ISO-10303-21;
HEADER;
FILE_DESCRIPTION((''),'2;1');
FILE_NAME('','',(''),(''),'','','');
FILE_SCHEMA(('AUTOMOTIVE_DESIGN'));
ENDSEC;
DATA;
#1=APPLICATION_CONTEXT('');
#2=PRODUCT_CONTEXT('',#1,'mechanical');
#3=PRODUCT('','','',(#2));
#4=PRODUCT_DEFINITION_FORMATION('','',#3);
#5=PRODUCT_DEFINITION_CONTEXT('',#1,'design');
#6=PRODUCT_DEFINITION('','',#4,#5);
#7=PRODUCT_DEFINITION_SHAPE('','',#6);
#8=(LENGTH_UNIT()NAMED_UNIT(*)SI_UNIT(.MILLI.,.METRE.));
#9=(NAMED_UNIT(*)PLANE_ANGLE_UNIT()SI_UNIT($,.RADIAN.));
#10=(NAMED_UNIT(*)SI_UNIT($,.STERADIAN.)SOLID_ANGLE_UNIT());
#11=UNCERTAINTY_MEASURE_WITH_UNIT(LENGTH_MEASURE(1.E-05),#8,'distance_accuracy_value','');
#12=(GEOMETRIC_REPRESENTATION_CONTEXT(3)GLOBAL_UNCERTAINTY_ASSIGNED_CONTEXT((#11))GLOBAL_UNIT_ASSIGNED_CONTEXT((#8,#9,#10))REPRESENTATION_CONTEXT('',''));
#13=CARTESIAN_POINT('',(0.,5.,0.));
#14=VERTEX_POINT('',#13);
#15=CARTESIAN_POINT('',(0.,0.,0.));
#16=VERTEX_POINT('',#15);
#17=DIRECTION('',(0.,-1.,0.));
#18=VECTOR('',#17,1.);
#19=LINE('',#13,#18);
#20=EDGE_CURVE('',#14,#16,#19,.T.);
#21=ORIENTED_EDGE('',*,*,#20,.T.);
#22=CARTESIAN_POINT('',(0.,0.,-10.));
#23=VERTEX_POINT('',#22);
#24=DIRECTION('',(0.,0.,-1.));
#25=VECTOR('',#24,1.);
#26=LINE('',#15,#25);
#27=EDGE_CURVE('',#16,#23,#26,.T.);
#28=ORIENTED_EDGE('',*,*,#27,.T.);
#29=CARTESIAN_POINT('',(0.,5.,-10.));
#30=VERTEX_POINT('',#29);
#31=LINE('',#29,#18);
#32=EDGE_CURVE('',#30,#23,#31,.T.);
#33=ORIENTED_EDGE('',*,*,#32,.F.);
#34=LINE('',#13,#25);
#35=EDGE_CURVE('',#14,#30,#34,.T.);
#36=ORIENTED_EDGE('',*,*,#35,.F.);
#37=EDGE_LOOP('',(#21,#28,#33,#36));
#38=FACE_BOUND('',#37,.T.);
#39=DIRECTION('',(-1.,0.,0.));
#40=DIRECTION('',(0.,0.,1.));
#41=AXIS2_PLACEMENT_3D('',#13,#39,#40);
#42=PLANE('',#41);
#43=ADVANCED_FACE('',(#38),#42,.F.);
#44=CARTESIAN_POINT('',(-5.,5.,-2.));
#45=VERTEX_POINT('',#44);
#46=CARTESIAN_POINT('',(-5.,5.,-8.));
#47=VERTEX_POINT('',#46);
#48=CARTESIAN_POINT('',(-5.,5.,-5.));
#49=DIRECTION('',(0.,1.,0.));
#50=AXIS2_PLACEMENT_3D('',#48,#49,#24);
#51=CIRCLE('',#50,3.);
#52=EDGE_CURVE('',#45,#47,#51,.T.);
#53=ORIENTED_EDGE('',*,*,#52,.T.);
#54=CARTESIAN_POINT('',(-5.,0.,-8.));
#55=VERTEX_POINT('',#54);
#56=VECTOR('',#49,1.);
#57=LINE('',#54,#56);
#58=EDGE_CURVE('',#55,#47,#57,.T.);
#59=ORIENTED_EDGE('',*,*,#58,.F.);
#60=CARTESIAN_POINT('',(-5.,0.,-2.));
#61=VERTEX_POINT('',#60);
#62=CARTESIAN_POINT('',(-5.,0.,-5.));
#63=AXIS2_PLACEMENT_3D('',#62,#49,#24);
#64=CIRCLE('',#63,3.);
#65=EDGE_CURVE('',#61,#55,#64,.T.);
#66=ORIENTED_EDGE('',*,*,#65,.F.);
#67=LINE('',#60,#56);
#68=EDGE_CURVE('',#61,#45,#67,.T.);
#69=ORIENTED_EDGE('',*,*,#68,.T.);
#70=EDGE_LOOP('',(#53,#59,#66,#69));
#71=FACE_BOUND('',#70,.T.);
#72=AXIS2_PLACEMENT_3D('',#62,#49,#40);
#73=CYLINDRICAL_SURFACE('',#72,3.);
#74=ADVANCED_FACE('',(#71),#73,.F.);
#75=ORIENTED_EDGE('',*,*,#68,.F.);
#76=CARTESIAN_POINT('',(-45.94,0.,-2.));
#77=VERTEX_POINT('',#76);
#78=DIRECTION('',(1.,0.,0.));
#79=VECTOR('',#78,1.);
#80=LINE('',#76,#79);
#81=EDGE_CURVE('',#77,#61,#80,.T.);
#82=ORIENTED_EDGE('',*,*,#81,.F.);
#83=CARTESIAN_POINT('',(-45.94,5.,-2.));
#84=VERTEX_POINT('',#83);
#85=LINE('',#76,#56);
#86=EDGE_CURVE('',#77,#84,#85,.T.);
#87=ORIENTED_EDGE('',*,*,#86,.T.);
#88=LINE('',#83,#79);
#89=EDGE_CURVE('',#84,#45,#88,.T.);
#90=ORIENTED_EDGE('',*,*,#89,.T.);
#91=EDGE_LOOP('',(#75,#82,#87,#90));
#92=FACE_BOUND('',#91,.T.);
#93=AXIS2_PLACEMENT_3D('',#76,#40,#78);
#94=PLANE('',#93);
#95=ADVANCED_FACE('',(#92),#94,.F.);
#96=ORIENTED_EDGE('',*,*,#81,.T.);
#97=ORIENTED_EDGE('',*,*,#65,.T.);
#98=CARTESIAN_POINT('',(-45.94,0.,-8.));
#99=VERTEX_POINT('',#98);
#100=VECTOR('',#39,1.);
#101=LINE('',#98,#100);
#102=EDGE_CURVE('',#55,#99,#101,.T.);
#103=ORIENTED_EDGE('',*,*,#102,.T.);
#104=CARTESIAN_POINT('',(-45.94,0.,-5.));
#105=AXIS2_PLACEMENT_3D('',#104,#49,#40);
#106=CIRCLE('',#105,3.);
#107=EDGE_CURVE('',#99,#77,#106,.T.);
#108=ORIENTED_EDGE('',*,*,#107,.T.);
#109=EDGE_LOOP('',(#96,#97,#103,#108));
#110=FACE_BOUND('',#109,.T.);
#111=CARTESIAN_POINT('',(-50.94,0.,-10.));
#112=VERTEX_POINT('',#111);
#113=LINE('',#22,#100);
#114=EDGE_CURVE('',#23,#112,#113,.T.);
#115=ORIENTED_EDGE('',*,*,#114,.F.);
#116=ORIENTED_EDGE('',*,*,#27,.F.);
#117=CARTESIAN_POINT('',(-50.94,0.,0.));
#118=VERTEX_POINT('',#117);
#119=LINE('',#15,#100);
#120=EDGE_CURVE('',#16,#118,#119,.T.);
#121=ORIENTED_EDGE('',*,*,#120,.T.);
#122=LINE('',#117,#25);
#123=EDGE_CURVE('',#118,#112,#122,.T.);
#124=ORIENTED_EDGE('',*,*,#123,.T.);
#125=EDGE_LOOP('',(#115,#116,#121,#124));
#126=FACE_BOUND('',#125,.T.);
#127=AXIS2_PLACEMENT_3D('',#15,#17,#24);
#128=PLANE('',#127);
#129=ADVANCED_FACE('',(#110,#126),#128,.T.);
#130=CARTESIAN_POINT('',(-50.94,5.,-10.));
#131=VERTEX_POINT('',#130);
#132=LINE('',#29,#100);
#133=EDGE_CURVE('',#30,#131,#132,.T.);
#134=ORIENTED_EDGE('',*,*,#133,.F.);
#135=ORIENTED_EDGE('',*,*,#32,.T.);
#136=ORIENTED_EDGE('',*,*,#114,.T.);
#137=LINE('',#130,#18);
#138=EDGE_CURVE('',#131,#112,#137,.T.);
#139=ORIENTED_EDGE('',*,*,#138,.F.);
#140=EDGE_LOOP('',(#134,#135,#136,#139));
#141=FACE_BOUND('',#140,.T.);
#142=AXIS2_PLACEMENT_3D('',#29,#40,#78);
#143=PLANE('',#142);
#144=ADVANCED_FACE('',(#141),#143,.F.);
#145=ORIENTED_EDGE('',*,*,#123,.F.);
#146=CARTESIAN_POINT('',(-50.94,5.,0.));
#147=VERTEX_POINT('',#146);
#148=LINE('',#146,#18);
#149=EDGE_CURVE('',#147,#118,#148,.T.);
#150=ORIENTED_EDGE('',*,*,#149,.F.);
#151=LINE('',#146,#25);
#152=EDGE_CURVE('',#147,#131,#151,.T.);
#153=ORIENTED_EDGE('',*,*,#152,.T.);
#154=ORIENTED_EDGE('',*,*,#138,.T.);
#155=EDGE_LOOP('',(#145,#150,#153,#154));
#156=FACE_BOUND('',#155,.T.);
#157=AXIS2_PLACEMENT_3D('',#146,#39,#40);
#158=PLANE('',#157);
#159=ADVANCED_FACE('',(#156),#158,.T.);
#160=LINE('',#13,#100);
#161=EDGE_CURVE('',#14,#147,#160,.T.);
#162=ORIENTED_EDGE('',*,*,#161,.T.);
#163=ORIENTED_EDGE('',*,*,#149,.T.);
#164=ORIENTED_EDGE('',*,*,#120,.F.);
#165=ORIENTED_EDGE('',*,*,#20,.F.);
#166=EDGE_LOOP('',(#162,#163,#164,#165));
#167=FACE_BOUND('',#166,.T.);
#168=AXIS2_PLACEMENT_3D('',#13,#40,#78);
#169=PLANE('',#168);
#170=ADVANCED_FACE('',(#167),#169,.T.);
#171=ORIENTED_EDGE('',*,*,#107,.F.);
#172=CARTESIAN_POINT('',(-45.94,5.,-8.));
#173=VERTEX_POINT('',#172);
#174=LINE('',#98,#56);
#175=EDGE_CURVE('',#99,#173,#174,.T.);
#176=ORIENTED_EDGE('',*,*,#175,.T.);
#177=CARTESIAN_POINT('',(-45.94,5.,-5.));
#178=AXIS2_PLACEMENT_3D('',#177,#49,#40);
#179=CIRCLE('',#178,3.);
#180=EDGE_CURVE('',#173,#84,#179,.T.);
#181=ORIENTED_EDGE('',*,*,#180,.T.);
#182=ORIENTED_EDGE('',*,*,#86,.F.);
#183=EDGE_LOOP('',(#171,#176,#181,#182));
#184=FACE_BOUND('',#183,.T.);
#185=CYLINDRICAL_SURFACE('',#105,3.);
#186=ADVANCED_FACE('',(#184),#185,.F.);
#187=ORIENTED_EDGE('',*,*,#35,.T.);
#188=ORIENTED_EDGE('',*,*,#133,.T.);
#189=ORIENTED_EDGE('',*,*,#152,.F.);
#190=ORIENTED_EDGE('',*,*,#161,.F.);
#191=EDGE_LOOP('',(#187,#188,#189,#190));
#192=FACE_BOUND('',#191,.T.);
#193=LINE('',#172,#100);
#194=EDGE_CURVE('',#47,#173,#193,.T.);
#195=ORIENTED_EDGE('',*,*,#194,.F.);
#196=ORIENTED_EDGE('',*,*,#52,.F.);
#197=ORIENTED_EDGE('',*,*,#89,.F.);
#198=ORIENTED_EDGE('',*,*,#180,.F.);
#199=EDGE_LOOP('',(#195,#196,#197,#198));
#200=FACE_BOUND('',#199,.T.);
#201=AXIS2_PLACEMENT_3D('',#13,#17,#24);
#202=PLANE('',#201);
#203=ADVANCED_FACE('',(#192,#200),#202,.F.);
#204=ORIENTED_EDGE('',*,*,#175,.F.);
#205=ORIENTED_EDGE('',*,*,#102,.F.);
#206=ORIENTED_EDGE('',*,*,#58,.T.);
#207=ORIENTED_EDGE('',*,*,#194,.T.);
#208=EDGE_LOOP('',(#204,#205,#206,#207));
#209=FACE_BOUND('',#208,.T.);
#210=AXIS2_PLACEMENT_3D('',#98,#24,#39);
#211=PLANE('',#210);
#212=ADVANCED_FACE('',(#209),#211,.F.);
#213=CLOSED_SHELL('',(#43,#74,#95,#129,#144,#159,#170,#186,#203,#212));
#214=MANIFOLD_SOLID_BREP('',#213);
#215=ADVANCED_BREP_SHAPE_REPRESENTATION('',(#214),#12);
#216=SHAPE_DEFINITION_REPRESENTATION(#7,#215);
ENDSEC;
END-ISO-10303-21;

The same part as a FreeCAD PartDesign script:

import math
import FreeCAD as App
import Part
import Sketcher

V = App.Vector
Q = App.Units.Quantity

doc = App.newDocument("Part")
body = doc.addObject("PartDesign::Body", "Body")

# Sketch on XZ plane
sketch1 = body.newObject("Sketcher::SketchObject", "Sketch")
sketch1.AttachmentSupport = (doc.getObject("XZ_Plane"), [""])
sketch1.MapMode = "FlatFace"
sketch1.addGeometry(Part.LineSegment(V(-51, -10, 0), V(-51, 0, 0)), False)
sketch1.addGeometry(Part.LineSegment(V(-51, 0, 0), V(0, 0, 0)), False)
sketch1.addGeometry(Part.LineSegment(V(0, 0, 0), V(0, -10, 0)), False)
sketch1.addGeometry(Part.LineSegment(V(0, -10, 0), V(-51, -10, 0)), False)
sketch1.addConstraint(Sketcher.Constraint("Coincident", 0, 2, 1, 1))
sketch1.addConstraint(Sketcher.Constraint("Coincident", 1, 2, 2, 1))
sketch1.addConstraint(Sketcher.Constraint("Coincident", 2, 2, 3, 1))
sketch1.addConstraint(Sketcher.Constraint("Coincident", 3, 2, 0, 1))
sketch1.addConstraint(Sketcher.Constraint("Vertical", 0))
sketch1.addConstraint(Sketcher.Constraint("Horizontal", 1))
sketch1.addConstraint(Sketcher.Constraint("Vertical", 2))
sketch1.addConstraint(Sketcher.Constraint("Horizontal", 3))
sketch1.addConstraint(Sketcher.Constraint("Coincident", 1, 2, -1, 1))
sketch1.addConstraint(Sketcher.Constraint("DistanceY", 0, 1, 0, 2, Q("10 mm")))
sketch1.addConstraint(Sketcher.Constraint("DistanceX", 1, 1, 1, 2, Q("50.94 mm")))
pad1 = body.newObject("PartDesign::Pad", "Pad")
pad1.Profile = sketch1
pad1.Length = 5
pad1.Reversed = True

# Sketch on XZ plane
sketch2 = body.newObject("Sketcher::SketchObject", "Sketch001")
sketch2.AttachmentSupport = (doc.getObject("XZ_Plane"), [""])
sketch2.MapMode = "FlatFace"
sketch2.AttachmentOffset = App.Placement(V(0, 0, -5), App.Rotation())
sketch2.addGeometry(Part.LineSegment(V(-45.9, -2, 0), V(-5, -2, 0)), False)
sketch2.addGeometry(Part.ArcOfCircle(Part.Circle(V(-5, -5, 0), V(0, 0, 1), 3), math.radians(-90), math.radians(90)), False)
sketch2.addGeometry(Part.LineSegment(V(-5, -8, 0), V(-45.9, -8, 0)), False)
sketch2.addGeometry(Part.ArcOfCircle(Part.Circle(V(-45.9, -5, 0), V(0, 0, 1), 3), math.radians(90), math.radians(270)), False)
sketch2.addConstraint(Sketcher.Constraint("Tangent", 0, 2, 1, 2))
sketch2.addConstraint(Sketcher.Constraint("Tangent", 1, 1, 2, 1))
sketch2.addConstraint(Sketcher.Constraint("Tangent", 2, 2, 3, 2))
sketch2.addConstraint(Sketcher.Constraint("Tangent", 3, 1, 0, 1))
sketch2.addConstraint(Sketcher.Constraint("Horizontal", 0))
sketch2.addConstraint(Sketcher.Constraint("Horizontal", 2))
sketch2.addConstraint(Sketcher.Constraint("Radius", 1, Q("3 mm")))
sketch2.addConstraint(Sketcher.Constraint("DistanceX", 1, 3, -1, 1, Q("5 mm")))
sketch2.addConstraint(Sketcher.Constraint("DistanceY", 1, 3, -1, 1, Q("5 mm")))
sketch2.addConstraint(Sketcher.Constraint("DistanceX", 0, 1, 0, 2, Q("40.94 mm")))
pocket1 = body.newObject("PartDesign::Pocket", "Pocket")
pocket1.Profile = sketch2
pocket1.Type = "ThroughAll"
pocket1.Reversed = True

doc.recompute()
